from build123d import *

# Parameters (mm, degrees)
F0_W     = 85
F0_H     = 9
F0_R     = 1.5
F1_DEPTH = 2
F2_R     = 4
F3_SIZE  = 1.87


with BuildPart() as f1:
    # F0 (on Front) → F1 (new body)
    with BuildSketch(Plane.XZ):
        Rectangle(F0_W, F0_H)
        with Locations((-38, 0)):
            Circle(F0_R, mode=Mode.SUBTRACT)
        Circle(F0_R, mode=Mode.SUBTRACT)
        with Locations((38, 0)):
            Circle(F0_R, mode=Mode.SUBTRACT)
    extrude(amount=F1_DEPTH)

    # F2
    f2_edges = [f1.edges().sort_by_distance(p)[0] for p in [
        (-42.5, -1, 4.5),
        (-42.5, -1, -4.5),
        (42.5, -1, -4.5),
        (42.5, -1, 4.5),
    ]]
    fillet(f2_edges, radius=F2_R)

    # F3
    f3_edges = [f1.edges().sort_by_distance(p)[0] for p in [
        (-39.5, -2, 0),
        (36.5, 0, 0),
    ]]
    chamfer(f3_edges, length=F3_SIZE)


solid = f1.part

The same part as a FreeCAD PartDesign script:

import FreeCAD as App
import Part
import Sketcher
from FreeCAD import Vector
Q = App.Units.Quantity


def edges_at(feature, points):
    """Names of the edges that pass closest to the given points."""
    edges = feature.Shape.Edges
    near = lambda p: min(range(len(edges)), key=lambda i: edges[i].distToShape(Part.Vertex(*p))[0])
    return sorted({f"Edge{near(p) + 1}" for p in points})


def add_polygon(sketch, points):
    """Adds a closed chain of lines whose ends are joined by coincident constraints."""
    first, n = sketch.GeometryCount, len(points)
    for a, b in zip(points, points[1:] + points[:1]):
        sketch.addGeometry(Part.LineSegment(App.Vector(*a, 0), App.Vector(*b, 0)), False)
    for i in range(n):
        sketch.addConstraint(Sketcher.Constraint("Coincident", first + i, 2, first + (i + 1) % n, 1))

doc = App.newDocument("Part")
body = doc.addObject("PartDesign::Body", "Body")

# Sketch on XZ plane
sketch1 = body.newObject("Sketcher::SketchObject", "Sketch")
sketch1.AttachmentSupport = (doc.getObject("XZ_Plane"), [""])
sketch1.MapMode = "FlatFace"
add_polygon(sketch1, [(-42.5, 4.5), (-42.5, -4.5), (42.5, -4.5), (42.5, 4.5)])  # lines 0-3
sketch1.addGeometry(Part.Circle(Vector(-38, 0, 0), Vector(0, 0, 1), 1.5), False)  # 4
sketch1.addGeometry(Part.Circle(Vector(0, 0, 0), Vector(0, 0, 1), 1.5), False)  # 5
sketch1.addGeometry(Part.Circle(Vector(38, 0, 0), Vector(0, 0, 1), 1.5), False)  # 6
sketch1.addConstraint([
    Sketcher.Constraint("Vertical", 0),
    Sketcher.Constraint("Horizontal", 1),
    Sketcher.Constraint("Vertical", 2),
    Sketcher.Constraint("Horizontal", 3),
    Sketcher.Constraint("Coincident", 5, 3, -1, 1),
    Sketcher.Constraint("Equal", 4, 5),
    Sketcher.Constraint("Equal", 5, 6),
    Sketcher.Constraint("Symmetric", 4, 3, 6, 3, -1, 1),
    Sketcher.Constraint("Symmetric", 0, 2, 2, 2, -1, 1),
    Sketcher.Constraint("PointOnObject", 4, 3, -1),
    Sketcher.Constraint("Diameter", 4, Q("3 mm")),
    Sketcher.Constraint("DistanceX", 1, 1, 1, 2, Q("85 mm")),
    Sketcher.Constraint("DistanceY", 0, 2, 0, 1, Q("9 mm")),
    Sketcher.Constraint("DistanceX", 4, 3, -1, 1, Q("38 mm")),
])
pad1 = body.newObject("PartDesign::Pad", "Pad")
pad1.Profile = sketch1
pad1.Length = 2
doc.recompute()

fillet = body.newObject("PartDesign::Fillet", "Fillet")
fillet.Base = (pad1, edges_at(pad1, [
    (-42.5, -1, 4.5),
    (-42.5, -1, -4.5),
    (42.5, -1, -4.5),
    (42.5, -1, 4.5),
]))
fillet.Radius = 4
doc.recompute()

chamfer = body.newObject("PartDesign::Chamfer", "Chamfer")
chamfer.Base = (fillet, edges_at(fillet, [(-39.5, -2, 0), (36.5, 0, 0)]))
chamfer.Size = 1.87

doc.recompute()
